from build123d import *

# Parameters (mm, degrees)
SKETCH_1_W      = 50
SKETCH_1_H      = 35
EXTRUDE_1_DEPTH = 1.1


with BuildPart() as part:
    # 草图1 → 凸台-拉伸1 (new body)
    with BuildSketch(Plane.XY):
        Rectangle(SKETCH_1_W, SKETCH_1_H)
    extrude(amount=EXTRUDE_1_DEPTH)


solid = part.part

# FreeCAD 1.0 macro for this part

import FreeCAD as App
import Part
import Sketcher
from FreeCAD import Vector

doc = App.newDocument("Part")
body = doc.addObject("PartDesign::Body", "Body")

# Sketch on XY plane
sketch1 = doc.addObject("Sketcher::SketchObject", "Sketch")
body.addObject(sketch1)
sketch1.AttachmentSupport = (doc.XY_Plane, [""])
sketch1.MapMode = "FlatFace"
sketch1.addGeometry(Part.LineSegment(Vector(-25, 18, 0), Vector(-25, -18, 0)), False)
sketch1.addGeometry(Part.LineSegment(Vector(-25, -18, 0), Vector(25, -18, 0)), False)
sketch1.addGeometry(Part.LineSegment(Vector(25, -18, 0), Vector(25, 18, 0)), False)
sketch1.addGeometry(Part.LineSegment(Vector(25, 18, 0), Vector(-25, 18, 0)), False)
sketch1.addConstraint(Sketcher.Constraint("Coincident", 0, 2, 1, 1))
sketch1.addConstraint(Sketcher.Constraint("Coincident", 1, 2, 2, 1))
sketch1.addConstraint(Sketcher.Constraint("Coincident", 2, 2, 3, 1))
sketch1.addConstraint(Sketcher.Constraint("Coincident", 3, 2, 0, 1))
sketch1.addConstraint(Sketcher.Constraint("Vertical", 0))
sketch1.addConstraint(Sketcher.Constraint("Horizontal", 1))
sketch1.addConstraint(Sketcher.Constraint("Vertical", 2))
sketch1.addConstraint(Sketcher.Constraint("Horizontal", 3))
sketch1.addConstraint(Sketcher.Constraint("Symmetric", 0, 2, 2, 2, -1, 1))
sketch1.addConstraint(Sketcher.Constraint("DistanceX", 1, 1, 1, 2, 50.0))
sketch1.addConstraint(Sketcher.Constraint("DistanceY", 0, 2, 0, 1, 35.0))
pad1 = doc.addObject("PartDesign::Pad", "Pad")
body.addObject(pad1)
pad1.Profile = sketch1
pad1.Length = 1.1

doc.recompute()
